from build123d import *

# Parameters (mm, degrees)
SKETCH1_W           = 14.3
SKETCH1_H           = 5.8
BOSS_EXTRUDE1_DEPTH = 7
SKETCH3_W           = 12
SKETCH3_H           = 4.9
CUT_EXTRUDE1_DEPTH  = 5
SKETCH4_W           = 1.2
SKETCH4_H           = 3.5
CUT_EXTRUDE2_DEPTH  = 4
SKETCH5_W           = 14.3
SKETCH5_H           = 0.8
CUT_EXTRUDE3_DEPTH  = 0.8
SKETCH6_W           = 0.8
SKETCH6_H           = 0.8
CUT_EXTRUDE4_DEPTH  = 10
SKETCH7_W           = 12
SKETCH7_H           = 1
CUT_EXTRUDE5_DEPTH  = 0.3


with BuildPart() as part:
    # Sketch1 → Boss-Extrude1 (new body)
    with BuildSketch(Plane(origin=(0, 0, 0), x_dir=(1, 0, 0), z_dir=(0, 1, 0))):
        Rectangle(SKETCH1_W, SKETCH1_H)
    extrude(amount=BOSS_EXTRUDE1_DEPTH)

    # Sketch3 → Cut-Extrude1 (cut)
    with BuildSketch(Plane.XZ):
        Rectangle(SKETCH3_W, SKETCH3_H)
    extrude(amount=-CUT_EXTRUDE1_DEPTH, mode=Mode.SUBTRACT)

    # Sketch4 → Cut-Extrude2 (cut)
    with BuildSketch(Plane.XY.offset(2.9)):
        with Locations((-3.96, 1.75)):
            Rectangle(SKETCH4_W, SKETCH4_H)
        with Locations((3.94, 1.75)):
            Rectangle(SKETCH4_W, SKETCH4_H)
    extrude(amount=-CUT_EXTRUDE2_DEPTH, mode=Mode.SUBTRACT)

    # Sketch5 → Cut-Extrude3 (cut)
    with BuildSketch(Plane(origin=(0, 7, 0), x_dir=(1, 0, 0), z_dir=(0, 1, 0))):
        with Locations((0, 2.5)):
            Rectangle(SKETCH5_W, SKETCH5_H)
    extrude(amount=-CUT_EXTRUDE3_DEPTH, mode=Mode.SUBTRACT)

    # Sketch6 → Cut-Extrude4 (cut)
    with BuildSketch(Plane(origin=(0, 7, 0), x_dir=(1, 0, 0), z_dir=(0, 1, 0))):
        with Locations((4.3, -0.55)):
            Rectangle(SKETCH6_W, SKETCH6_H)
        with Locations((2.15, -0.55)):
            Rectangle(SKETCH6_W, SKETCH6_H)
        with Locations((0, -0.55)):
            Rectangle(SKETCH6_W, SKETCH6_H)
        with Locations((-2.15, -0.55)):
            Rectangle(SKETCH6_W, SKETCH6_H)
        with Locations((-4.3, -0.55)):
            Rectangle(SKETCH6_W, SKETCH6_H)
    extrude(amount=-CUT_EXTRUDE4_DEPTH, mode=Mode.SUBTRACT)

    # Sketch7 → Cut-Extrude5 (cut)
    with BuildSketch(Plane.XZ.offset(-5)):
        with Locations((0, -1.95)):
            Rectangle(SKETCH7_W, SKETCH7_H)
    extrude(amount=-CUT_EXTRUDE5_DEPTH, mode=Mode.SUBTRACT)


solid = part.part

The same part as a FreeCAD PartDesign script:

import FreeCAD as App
import Part
import Sketcher
from FreeCAD import Vector


def add_polygon(sketch, points):
    """Adds a closed chain of lines whose ends are joined by coincident constraints."""
    first, n = sketch.GeometryCount, len(points)
    for a, b in zip(points, points[1:] + points[:1]):
        sketch.addGeometry(Part.LineSegment(App.Vector(*a, 0), App.Vector(*b, 0)), False)
    for i in range(n):
        sketch.addConstraint(Sketcher.Constraint("Coincident", first + i, 2, first + (i + 1) % n, 1))

doc = App.newDocument("Part")
body = doc.addObject("PartDesign::Body", "Body")

sketch1 = doc.addObject("Sketcher::SketchObject", "Sketch")
body.addObject(sketch1)
sketch1.AttachmentSupport = (doc.XZ_Plane, [""])
sketch1.MapMode = "FlatFace"
add_polygon(sketch1, [(-7, -3), (-7, 3), (7, 3), (7, -3)])
sketch1.addConstraint(Sketcher.Constraint("Vertical", 0))
sketch1.addConstraint(Sketcher.Constraint("Horizontal", 1))
sketch1.addConstraint(Sketcher.Constraint("Vertical", 2))
sketch1.addConstraint(Sketcher.Constraint("Horizontal", 3))
sketch1.addConstraint(Sketcher.Constraint("Symmetric", 0, 2, 2, 2, -1, 1))
sketch1.addConstraint(Sketcher.Constraint("DistanceX", 1, 1, 1, 2, 14.3))
sketch1.addConstraint(Sketcher.Constraint("DistanceY", 0, 1, 0, 2, 5.8))
pad1 = doc.addObject("PartDesign::Pad", "Pad")
body.addObject(pad1)
pad1.Profile = sketch1
pad1.Length = 7
pad1.Reversed = True

sketch2 = doc.addObject("Sketcher::SketchObject", "Sketch001")
body.addObject(sketch2)
sketch2.AttachmentSupport = (doc.XZ_Plane, [""])
sketch2.MapMode = "FlatFace"
add_polygon(sketch2, [(-6, 2.5), (-6, -2.5), (6, -2.5), (6, 2.5)])
sketch2.addConstraint(Sketcher.Constraint("Vertical", 0))
sketch2.addConstraint(Sketcher.Constraint("Horizontal", 1))
sketch2.addConstraint(Sketcher.Constraint("Vertical", 2))
sketch2.addConstraint(Sketcher.Constraint("Horizontal", 3))
sketch2.addConstraint(Sketcher.Constraint("Symmetric", 0, 2, 2, 2, -1, 1))
sketch2.addConstraint(Sketcher.Constraint("DistanceX", 1, 1, 1, 2, 12.0))
sketch2.addConstraint(Sketcher.Constraint("DistanceY", 0, 2, 0, 1, 4.9))
pocket1 = doc.addObject("PartDesign::Pocket", "Pocket")
body.addObject(pocket1)
pocket1.Profile = sketch2
pocket1.Length = 5

sketch3 = doc.addObject("Sketcher::SketchObject", "Sketch002")
body.addObject(sketch3)
sketch3.AttachmentSupport = (doc.XY_Plane, [""])
sketch3.MapMode = "FlatFace"
sketch3.AttachmentOffset = App.Placement(Vector(0, 0, 2.9), App.Rotation())
add_polygon(sketch3, [(-4.6, 3.5), (-4.6, 0), (-3.4, 0), (-3.4, 3.5)])
add_polygon(sketch3, [(3.3, 3.5), (3.3, 0), (4.5, 0), (4.5, 3.5)])
sketch3.addConstraint(Sketcher.Constraint("Vertical", 0))
sketch3.addConstraint(Sketcher.Constraint("Horizontal", 1))
sketch3.addConstraint(Sketcher.Constraint("Vertical", 2))
sketch3.addConstraint(Sketcher.Constraint("Horizontal", 3))
sketch3.addConstraint(Sketcher.Constraint("Vertical", 4))
sketch3.addConstraint(Sketcher.Constraint("Horizontal", 5))
sketch3.addConstraint(Sketcher.Constraint("Vertical", 6))
sketch3.addConstraint(Sketcher.Constraint("Horizontal", 7))
sketch3.addConstraint(Sketcher.Constraint("PointOnObject", 0, 2, -1))
sketch3.addConstraint(Sketcher.Constraint("PointOnObject", 4, 2, -1))
sketch3.addConstraint(Sketcher.Constraint("Horizontal", 3, 2, 6, 2))
sketch3.addConstraint(Sketcher.Constraint("Equal", 3, 5))
sketch3.addConstraint(Sketcher.Constraint("DistanceX", 1, 1, 1, 2, 1.2))
sketch3.addConstraint(Sketcher.Constraint("DistanceY", 0, 2, 0, 1, 3.5))
sketch3.addConstraint(Sketcher.Constraint("DistanceX", 1, 2, 4, 2, 6.7))
sketch3.addConstraint(Sketcher.Constraint("DistanceX", 0, 2, -1, 1, 4.56))
pocket2 = doc.addObject("PartDesign::Pocket", "Pocket001")
body.addObject(pocket2)
pocket2.Profile = sketch3
pocket2.Length = 4

sketch4 = doc.addObject("Sketcher::SketchObject", "Sketch003")
body.addObject(sketch4)
sketch4.AttachmentSupport = (doc.XZ_Plane, [""])
sketch4.MapMode = "FlatFace"
sketch4.AttachmentOffset = App.Placement(Vector(0, 0, -7), App.Rotation())
add_polygon(sketch4, [(-7.2, -2.9), (-7.2, -2.1), (7.2, -2.1), (7.2, -2.9)])
sketch4.addConstraint(Sketcher.Constraint("Vertical", 0))
sketch4.addConstraint(Sketcher.Constraint("Horizontal", 1))
sketch4.addConstraint(Sketcher.Constraint("Vertical", 2))
sketch4.addConstraint(Sketcher.Constraint("Horizontal", 3))
sketch4.addConstraint(Sketcher.Constraint("DistanceX", 1, 1, 1, 2, 14.3))
sketch4.addConstraint(Sketcher.Constraint("DistanceY", 0, 1, 0, 2, 0.8))
sketch4.addConstraint(Sketcher.Constraint("DistanceY", 0, 2, -1, 1, 2.1))
sketch4.addConstraint(Sketcher.Constraint("DistanceX", 0, 2, -1, 1, 7.15))
pocket3 = doc.addObject("PartDesign::Pocket", "Pocket002")
body.addObject(pocket3)
pocket3.Profile = sketch4
pocket3.Length = 0.8
pocket3.Reversed = True

sketch5 = doc.addObject("Sketcher::SketchObject", "Sketch004")
body.addObject(sketch5)
sketch5.AttachmentSupport = (doc.XZ_Plane, [""])
sketch5.MapMode = "FlatFace"
sketch5.AttachmentOffset = App.Placement(Vector(0, 0, -7), App.Rotation())
add_polygon(sketch5, [(3.9, 0.1), (3.9, 0.9), (4.7, 0.9), (4.7, 0.1)])
add_polygon(sketch5, [(1.8, 0.1), (1.8, 0.9), (2.5, 0.9), (2.5, 0.1)])
add_polygon(sketch5, [(-0.4, 0.1), (-0.4, 0.9), (0.4, 0.9), (0.4, 0.1)])
add_polygon(sketch5, [(-2.5, 0.1), (-2.5, 0.9), (-1.8, 0.9), (-1.8, 0.1)])
add_polygon(sketch5, [(-4.7, 0.1), (-4.7, 0.9), (-3.9, 0.9), (-3.9, 0.1)])
sketch5.addConstraint(Sketcher.Constraint("Vertical", 0))
sketch5.addConstraint(Sketcher.Constraint("Horizontal", 1))
sketch5.addConstraint(Sketcher.Constraint("Vertical", 2))
sketch5.addConstraint(Sketcher.Constraint("Horizontal", 3))
sketch5.addConstraint(Sketcher.Constraint("Vertical", 4))
sketch5.addConstraint(Sketcher.Constraint("Horizontal", 5))
sketch5.addConstraint(Sketcher.Constraint("Vertical", 6))
sketch5.addConstraint(Sketcher.Constraint("Horizontal", 7))
sketch5.addConstraint(Sketcher.Constraint("Vertical", 8))
sketch5.addConstraint(Sketcher.Constraint("Horizontal", 9))
sketch5.addConstraint(Sketcher.Constraint("Vertical", 10))
sketch5.addConstraint(Sketcher.Constraint("Horizontal", 11))
sketch5.addConstraint(Sketcher.Constraint("Vertical", 12))
sketch5.addConstraint(Sketcher.Constraint("Horizontal", 13))
sketch5.addConstraint(Sketcher.Constraint("Vertical", 14))
sketch5.addConstraint(Sketcher.Constraint("Horizontal", 15))
sketch5.addConstraint(Sketcher.Constraint("Vertical", 16))
sketch5.addConstraint(Sketcher.Constraint("Horizontal", 17))
sketch5.addConstraint(Sketcher.Constraint("Vertical", 18))
sketch5.addConstraint(Sketcher.Constraint("Horizontal", 19))
sketch5.addConstraint(Sketcher.Constraint("Symmetric", 5, 2, 12, 2, -2))
sketch5.addConstraint(Sketcher.Constraint("Symmetric", 7, 2, 14, 2, -2))
sketch5.addConstraint(Sketcher.Constraint("Symmetric", 1, 2, 16, 2, -2))
sketch5.addConstraint(Sketcher.Constraint("Symmetric", 3, 2, 18, 2, -2))
sketch5.addConstraint(Sketcher.Constraint("Horizontal", 1, 2, 4, 2))
sketch5.addConstraint(Sketcher.Constraint("Horizontal", 3, 2, 6, 2))
sketch5.addConstraint(Sketcher.Constraint("Horizontal", 5, 2, 8, 2))
sketch5.addConstraint(Sketcher.Constraint("Horizontal", 7, 2, 10, 2))
sketch5.addConstraint(Sketcher.Constraint("Equal", 3, 5))
sketch5.addConstraint(Sketcher.Constraint("Equal", 7, 9))
sketch5.addConstraint(Sketcher.Constraint("Equal", 19, 0))
sketch5.addConstraint(Sketcher.Constraint("DistanceX", 1, 1, 1, 2, 0.8))
sketch5.addConstraint(Sketcher.Constraint("DistanceX", -1, 1, 0, 2, 3.9))
sketch5.addConstraint(Sketcher.Constraint("DistanceX", 8, 2, -1, 1, 0.4))
sketch5.addConstraint(Sketcher.Constraint("DistanceX", 12, 2, 4, 2, 4.3))
sketch5.addConstraint(Sketcher.Constraint("DistanceY", -1, 1, 0, 2, 0.95))
pocket4 = doc.addObject("PartDesign::Pocket", "Pocket003")
body.addObject(pocket4)
pocket4.Profile = sketch5
pocket4.Length = 10
pocket4.Reversed = True

sketch6 = doc.addObject("Sketcher::SketchObject", "Sketch005")
body.addObject(sketch6)
sketch6.AttachmentSupport = (doc.XZ_Plane, [""])
sketch6.MapMode = "FlatFace"
sketch6.AttachmentOffset = App.Placement(Vector(0, 0, -5), App.Rotation())
add_polygon(sketch6, [(-6, -1.4), (-6, -2.5), (6, -2.5), (6, -1.4)])
sketch6.addConstraint(Sketcher.Constraint("Vertical", 0))
sketch6.addConstraint(Sketcher.Constraint("Horizontal", 1))
sketch6.addConstraint(Sketcher.Constraint("Vertical", 2))
sketch6.addConstraint(Sketcher.Constraint("Horizontal", 3))
sketch6.addConstraint(Sketcher.Constraint("DistanceX", 1, 1, 1, 2, 12.0))
sketch6.addConstraint(Sketcher.Constraint("DistanceY", 0, 2, 0, 1, 1.0))
sketch6.addConstraint(Sketcher.Constraint("DistanceX", 0, 2, -1, 1, 6.0))
sketch6.addConstraint(Sketcher.Constraint("DistanceY", 0, 2, -1, 1, 2.45))
pocket5 = doc.addObject("PartDesign::Pocket", "Pocket004")
body.addObject(pocket5)
pocket5.Profile = sketch6
pocket5.Length = 0.3

doc.recompute()
